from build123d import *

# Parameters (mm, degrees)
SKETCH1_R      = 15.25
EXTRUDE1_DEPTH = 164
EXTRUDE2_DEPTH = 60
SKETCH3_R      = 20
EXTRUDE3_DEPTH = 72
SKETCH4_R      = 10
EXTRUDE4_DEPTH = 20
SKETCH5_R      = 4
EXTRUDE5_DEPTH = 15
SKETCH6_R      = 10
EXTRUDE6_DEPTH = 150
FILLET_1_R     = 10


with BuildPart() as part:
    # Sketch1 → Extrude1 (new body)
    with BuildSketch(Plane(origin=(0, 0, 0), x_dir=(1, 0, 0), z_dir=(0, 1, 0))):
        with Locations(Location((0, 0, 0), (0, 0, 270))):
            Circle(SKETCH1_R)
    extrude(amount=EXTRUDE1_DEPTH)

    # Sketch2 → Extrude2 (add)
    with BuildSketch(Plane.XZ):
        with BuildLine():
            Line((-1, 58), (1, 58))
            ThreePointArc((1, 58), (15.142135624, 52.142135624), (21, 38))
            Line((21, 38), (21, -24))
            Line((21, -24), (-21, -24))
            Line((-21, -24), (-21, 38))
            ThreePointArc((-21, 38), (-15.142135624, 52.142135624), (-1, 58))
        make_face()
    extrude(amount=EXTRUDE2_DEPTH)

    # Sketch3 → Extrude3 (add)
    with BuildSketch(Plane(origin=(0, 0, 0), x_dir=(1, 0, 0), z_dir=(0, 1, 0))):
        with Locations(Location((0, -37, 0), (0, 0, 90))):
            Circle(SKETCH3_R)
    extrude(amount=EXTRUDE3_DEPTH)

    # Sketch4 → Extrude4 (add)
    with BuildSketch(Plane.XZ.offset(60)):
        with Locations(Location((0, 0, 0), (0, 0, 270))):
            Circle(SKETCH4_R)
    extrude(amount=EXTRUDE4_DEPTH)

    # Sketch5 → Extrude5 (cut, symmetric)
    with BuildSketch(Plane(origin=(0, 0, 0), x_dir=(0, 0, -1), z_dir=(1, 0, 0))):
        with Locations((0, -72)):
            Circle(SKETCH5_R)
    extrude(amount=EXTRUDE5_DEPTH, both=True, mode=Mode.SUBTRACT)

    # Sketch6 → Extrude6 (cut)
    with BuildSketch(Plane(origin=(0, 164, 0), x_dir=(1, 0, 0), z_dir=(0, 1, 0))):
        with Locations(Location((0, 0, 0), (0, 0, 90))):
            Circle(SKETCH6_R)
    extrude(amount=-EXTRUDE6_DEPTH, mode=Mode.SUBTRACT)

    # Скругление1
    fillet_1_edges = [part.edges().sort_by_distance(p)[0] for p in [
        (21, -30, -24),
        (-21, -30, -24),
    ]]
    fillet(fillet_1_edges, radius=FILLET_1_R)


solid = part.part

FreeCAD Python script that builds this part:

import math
import FreeCAD as App
import Part
import Sketcher
from FreeCAD import Vector
Q = App.Units.Quantity


def edges_at(feature, points):
    """Names of the edges that pass closest to the given points."""
    edges = feature.Shape.Edges
    near = lambda p: min(range(len(edges)), key=lambda i: edges[i].distToShape(Part.Vertex(*p))[0])
    return sorted({f"Edge{near(p) + 1}" for p in points})

doc = App.newDocument("Part")
body = doc.addObject("PartDesign::Body", "Body")

sketch1 = doc.addObject("Sketcher::SketchObject", "Sketch")
body.addObject(sketch1)
sketch1.AttachmentSupport = (doc.XZ_Plane, [""])
sketch1.MapMode = "FlatFace"
sketch1.addGeometry(Part.Circle(Vector(0, 0, 0), Vector(0, 0, 1), 15), False)
sketch1.addConstraint([
    Sketcher.Constraint("Coincident", 0, 3, -1, 1),
    Sketcher.Constraint("Diameter", 0, Q("30.5 mm")),
])
pad1 = doc.addObject("PartDesign::Pad", "Pad")
body.addObject(pad1)
pad1.Profile = sketch1
pad1.Length = 164
pad1.Reversed = True

sketch2 = doc.addObject("Sketcher::SketchObject", "Sketch001")
body.addObject(sketch2)
sketch2.AttachmentSupport = (doc.XZ_Plane, [""])
sketch2.MapMode = "FlatFace"
sketch2.addGeometry([
    Part.LineSegment(Vector(1, 58, 0), Vector(-1, 58, 0)),
    Part.ArcOfCircle(Part.Circle(Vector(-1, 38, 0), Vector(0, 0, 1), 20), math.radians(90), math.radians(180)),
    Part.LineSegment(Vector(-21, 38, 0), Vector(-21, -24, 0)),
    Part.LineSegment(Vector(-21, -24, 0), Vector(21, -24, 0)),
    Part.LineSegment(Vector(21, -24, 0), Vector(21, 38, 0)),
    Part.ArcOfCircle(Part.Circle(Vector(1, 38, 0), Vector(0, 0, 1), 20), math.radians(0), math.radians(90)),
], False)
sketch2.addConstraint([
    Sketcher.Constraint("Tangent", 0, 2, 1, 1),
    Sketcher.Constraint("Tangent", 1, 2, 2, 1),
    Sketcher.Constraint("Coincident", 2, 2, 3, 1),
    Sketcher.Constraint("Coincident", 3, 2, 4, 1),
    Sketcher.Constraint("Tangent", 4, 2, 5, 1),
    Sketcher.Constraint("Tangent", 5, 2, 0, 1),
    Sketcher.Constraint("Horizontal", 0),
    Sketcher.Constraint("Vertical", 2),
    Sketcher.Constraint("Horizontal", 3),
    Sketcher.Constraint("Vertical", 4),
    Sketcher.Constraint("Equal", 1, 5),
    Sketcher.Constraint("Radius", 1, Q("20 mm")),
    Sketcher.Constraint("DistanceX", 0, 2, 0, 1, Q("2 mm")),
    Sketcher.Constraint("DistanceY", 2, 2, 2, 1, Q("62 mm")),
    Sketcher.Constraint("DistanceX", 1, 3, -1, 1, Q("1 mm")),
    Sketcher.Constraint("DistanceY", -1, 1, 1, 3, Q("38 mm")),
])
pad2 = doc.addObject("PartDesign::Pad", "Pad001")
body.addObject(pad2)
pad2.Profile = sketch2
pad2.Length = 60

sketch3 = doc.addObject("Sketcher::SketchObject", "Sketch002")
body.addObject(sketch3)
sketch3.AttachmentSupport = (doc.XZ_Plane, [""])
sketch3.MapMode = "FlatFace"
sketch3.addGeometry(Part.Circle(Vector(0, 37, 0), Vector(0, 0, 1), 20), False)
sketch3.addConstraint([
    Sketcher.Constraint("PointOnObject", 0, 3, -2),
    Sketcher.Constraint("Diameter", 0, Q("40 mm")),
    Sketcher.Constraint("DistanceY", -1, 1, 0, 3, Q("37 mm")),
])
pad3 = doc.addObject("PartDesign::Pad", "Pad002")
body.addObject(pad3)
pad3.Profile = sketch3
pad3.Length = 72
pad3.Reversed = True

sketch4 = doc.addObject("Sketcher::SketchObject", "Sketch003")
body.addObject(sketch4)
sketch4.AttachmentSupport = (doc.XZ_Plane, [""])
sketch4.MapMode = "FlatFace"
sketch4.AttachmentOffset = App.Placement(Vector(0, 0, 60), App.Rotation())
sketch4.addGeometry(Part.Circle(Vector(0, 0, 0), Vector(0, 0, 1), 10), False)
sketch4.addConstraint([
    Sketcher.Constraint("Coincident", 0, 3, -1, 1),
    Sketcher.Constraint("Diameter", 0, Q("20 mm")),
])
pad4 = doc.addObject("PartDesign::Pad", "Pad003")
body.addObject(pad4)
pad4.Profile = sketch4
pad4.Length = 20

sketch5 = doc.addObject("Sketcher::SketchObject", "Sketch004")
body.addObject(sketch5)
sketch5.AttachmentSupport = (doc.YZ_Plane, [""])
sketch5.MapMode = "FlatFace"
sketch5.addGeometry(Part.Circle(Vector(-72, 0, 0), Vector(0, 0, 1), 4), False)
sketch5.addConstraint([
    Sketcher.Constraint("PointOnObject", 0, 3, -1),
    Sketcher.Constraint("Diameter", 0, Q("8 mm")),
    Sketcher.Constraint("DistanceX", 0, 3, -1, 1, Q("72 mm")),
])
pocket1 = doc.addObject("PartDesign::Pocket", "Pocket")
body.addObject(pocket1)
pocket1.Profile = sketch5
pocket1.Length = 30
pocket1.Midplane = True

sketch6 = doc.addObject("Sketcher::SketchObject", "Sketch005")
body.addObject(sketch6)
sketch6.AttachmentSupport = (doc.XZ_Plane, [""])
sketch6.MapMode = "FlatFace"
sketch6.AttachmentOffset = App.Placement(Vector(0, 0, -164), App.Rotation())
sketch6.addGeometry(Part.Circle(Vector(0, 0, 0), Vector(0, 0, 1), 10), False)
sketch6.addConstraint([
    Sketcher.Constraint("Coincident", 0, 3, -1, 1),
    Sketcher.Constraint("Diameter", 0, Q("20 mm")),
])
pocket2 = doc.addObject("PartDesign::Pocket", "Pocket001")
body.addObject(pocket2)
pocket2.Profile = sketch6
pocket2.Length = 150
pocket2.Reversed = True
doc.recompute()

fillet = doc.addObject("PartDesign::Fillet", "Fillet")
body.addObject(fillet)
fillet.Base = (pocket2, edges_at(pocket2, [(21, -30, -24), (-21, -30, -24)]))
fillet.Radius = 10

doc.recompute()
